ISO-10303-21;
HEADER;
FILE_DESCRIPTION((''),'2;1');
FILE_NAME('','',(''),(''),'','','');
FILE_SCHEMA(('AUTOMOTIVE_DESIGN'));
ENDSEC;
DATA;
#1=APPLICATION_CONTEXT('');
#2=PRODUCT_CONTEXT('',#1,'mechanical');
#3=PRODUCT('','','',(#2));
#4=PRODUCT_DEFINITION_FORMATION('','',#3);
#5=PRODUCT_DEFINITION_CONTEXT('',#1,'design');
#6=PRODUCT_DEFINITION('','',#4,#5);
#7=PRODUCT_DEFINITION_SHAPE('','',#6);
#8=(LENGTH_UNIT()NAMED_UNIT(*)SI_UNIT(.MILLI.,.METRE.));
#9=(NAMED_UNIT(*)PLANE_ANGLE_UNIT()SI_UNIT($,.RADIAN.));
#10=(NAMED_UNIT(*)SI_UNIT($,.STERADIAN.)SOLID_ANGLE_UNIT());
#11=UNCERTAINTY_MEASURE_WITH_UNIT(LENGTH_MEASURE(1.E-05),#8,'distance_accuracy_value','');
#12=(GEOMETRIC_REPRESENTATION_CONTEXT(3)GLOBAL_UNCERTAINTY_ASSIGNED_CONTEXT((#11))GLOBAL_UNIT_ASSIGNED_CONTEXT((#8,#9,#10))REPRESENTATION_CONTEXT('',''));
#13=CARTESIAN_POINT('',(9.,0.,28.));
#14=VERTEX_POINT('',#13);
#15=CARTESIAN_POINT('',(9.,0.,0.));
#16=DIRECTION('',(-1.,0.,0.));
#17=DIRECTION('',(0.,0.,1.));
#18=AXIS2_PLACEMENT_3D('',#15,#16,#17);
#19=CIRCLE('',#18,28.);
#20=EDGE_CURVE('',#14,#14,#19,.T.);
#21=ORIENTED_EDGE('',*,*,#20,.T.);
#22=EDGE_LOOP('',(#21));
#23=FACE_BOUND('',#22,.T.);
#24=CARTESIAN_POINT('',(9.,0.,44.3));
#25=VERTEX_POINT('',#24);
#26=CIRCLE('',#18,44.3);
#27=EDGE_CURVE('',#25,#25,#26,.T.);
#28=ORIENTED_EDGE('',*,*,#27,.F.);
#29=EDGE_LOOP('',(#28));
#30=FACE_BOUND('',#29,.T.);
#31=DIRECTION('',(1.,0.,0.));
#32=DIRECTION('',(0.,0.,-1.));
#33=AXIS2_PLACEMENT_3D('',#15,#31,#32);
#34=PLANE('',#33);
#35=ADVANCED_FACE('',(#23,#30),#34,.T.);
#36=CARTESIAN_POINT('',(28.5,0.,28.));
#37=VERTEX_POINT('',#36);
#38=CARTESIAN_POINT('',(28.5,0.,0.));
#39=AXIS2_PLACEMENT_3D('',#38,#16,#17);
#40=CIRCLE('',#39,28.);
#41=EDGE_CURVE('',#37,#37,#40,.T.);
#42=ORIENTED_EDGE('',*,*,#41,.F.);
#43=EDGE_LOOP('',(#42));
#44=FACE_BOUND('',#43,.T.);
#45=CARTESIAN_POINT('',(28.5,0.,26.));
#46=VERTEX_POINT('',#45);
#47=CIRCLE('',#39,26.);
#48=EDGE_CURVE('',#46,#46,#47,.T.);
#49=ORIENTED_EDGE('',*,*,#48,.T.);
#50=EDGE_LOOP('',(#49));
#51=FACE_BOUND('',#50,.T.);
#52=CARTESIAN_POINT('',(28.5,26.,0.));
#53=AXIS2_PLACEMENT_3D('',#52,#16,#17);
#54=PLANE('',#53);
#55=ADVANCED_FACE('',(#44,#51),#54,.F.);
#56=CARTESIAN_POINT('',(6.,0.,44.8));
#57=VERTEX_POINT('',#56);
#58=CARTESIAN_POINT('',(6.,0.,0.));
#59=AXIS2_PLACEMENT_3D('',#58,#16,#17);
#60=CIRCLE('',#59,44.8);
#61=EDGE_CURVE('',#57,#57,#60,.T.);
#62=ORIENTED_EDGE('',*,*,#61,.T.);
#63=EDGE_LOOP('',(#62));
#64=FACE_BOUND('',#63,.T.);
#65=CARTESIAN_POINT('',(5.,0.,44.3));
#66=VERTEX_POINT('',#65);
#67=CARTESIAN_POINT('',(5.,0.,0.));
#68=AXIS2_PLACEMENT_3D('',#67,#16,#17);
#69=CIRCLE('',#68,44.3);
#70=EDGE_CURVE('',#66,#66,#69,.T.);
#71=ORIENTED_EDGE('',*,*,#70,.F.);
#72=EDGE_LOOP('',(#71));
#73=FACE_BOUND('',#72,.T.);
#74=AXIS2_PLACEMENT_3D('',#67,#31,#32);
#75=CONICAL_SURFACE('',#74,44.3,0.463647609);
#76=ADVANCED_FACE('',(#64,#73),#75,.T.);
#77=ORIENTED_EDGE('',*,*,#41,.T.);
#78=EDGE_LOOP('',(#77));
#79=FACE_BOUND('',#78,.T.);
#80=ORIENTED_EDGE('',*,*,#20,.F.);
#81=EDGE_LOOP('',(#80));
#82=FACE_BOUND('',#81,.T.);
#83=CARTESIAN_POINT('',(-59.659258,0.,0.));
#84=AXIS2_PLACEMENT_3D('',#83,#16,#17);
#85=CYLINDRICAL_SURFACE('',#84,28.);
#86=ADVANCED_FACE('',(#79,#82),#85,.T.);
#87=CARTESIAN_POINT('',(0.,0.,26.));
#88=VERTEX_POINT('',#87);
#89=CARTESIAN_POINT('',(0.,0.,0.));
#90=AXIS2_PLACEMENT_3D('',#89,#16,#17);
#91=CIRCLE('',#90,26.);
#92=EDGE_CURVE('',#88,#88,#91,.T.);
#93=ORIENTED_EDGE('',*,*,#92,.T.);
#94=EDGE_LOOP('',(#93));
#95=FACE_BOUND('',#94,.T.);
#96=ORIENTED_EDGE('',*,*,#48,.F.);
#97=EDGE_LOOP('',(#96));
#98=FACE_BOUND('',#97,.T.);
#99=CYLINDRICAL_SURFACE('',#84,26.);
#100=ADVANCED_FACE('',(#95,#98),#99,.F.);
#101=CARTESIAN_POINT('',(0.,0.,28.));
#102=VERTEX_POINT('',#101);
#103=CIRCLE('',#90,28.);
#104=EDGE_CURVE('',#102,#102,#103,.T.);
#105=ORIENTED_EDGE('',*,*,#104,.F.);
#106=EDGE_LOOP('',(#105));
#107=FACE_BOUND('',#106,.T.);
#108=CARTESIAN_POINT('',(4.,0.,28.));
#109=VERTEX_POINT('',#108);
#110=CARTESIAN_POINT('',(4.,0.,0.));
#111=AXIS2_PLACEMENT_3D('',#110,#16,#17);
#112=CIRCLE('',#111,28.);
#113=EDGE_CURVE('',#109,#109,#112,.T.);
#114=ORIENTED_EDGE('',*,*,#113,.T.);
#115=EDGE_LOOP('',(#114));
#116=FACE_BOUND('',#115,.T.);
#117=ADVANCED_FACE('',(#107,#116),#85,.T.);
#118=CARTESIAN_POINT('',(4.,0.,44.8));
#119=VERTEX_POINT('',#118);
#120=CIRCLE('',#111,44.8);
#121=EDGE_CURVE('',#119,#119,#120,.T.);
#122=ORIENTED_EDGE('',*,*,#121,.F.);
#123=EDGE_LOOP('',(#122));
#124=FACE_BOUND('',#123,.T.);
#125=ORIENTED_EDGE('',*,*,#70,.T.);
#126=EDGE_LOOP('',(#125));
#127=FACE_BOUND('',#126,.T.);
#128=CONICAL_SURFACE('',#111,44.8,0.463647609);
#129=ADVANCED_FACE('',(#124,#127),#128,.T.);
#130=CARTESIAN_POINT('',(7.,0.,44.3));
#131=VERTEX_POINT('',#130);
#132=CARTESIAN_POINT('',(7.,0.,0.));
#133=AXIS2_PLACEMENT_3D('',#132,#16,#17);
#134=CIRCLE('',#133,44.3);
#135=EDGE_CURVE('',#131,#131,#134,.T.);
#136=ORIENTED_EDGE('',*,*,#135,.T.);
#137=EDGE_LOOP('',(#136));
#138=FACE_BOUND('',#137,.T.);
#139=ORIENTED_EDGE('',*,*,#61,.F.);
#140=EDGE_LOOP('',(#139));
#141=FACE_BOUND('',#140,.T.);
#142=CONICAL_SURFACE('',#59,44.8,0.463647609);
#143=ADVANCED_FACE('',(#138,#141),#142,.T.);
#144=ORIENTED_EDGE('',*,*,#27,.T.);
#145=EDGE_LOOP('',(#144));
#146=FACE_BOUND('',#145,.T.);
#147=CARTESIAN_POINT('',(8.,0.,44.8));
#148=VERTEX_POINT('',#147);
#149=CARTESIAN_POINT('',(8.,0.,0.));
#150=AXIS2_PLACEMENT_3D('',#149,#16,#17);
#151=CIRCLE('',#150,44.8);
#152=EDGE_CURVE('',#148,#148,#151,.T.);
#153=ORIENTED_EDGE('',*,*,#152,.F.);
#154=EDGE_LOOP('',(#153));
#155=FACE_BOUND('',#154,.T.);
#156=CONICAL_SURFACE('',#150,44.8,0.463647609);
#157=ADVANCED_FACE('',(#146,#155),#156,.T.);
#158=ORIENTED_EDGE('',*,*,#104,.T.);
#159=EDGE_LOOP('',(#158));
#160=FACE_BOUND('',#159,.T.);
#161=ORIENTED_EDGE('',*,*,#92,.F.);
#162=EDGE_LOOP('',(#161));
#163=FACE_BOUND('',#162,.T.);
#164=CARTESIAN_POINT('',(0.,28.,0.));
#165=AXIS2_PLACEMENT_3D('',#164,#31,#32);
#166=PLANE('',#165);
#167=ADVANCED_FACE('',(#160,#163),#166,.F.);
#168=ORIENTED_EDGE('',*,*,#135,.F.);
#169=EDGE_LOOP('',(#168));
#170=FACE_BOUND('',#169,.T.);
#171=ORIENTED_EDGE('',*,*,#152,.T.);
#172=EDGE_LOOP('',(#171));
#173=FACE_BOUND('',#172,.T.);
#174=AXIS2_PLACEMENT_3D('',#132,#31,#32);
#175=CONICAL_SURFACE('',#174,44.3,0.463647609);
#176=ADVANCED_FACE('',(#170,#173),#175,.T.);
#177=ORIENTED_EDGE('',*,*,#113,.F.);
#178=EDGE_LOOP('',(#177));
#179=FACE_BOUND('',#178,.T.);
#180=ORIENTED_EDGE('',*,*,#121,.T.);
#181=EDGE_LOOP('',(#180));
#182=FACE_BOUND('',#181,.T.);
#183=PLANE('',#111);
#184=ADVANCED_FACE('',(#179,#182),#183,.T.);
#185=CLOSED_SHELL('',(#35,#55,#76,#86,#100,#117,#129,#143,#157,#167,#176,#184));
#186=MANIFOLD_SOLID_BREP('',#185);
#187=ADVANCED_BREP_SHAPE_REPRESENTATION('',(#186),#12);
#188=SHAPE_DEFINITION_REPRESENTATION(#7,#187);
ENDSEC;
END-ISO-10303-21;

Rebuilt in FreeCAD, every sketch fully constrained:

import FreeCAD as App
import Part
import Sketcher
from FreeCAD import Vector

doc = App.newDocument("Part")
params = doc.addObject("Spreadsheet::Sheet", "Params")
for row, (alias, value) in enumerate([
    ("sketch1_width", "4 mm"),
    ("sketch1_height", "2 mm"),
    ("sketch1_width2", "28.5 mm"),
    ("sketch1_width3", "19.5 mm"),
    ("sketch1_height2", "16.3 mm"),
    ("revolution_angle", "360 deg"),
], start=1):
    params.set(f"A{row}", alias)
    params.set(f"B{row}", "=" + value)
    params.setAlias(f"B{row}", alias)

body = doc.addObject("PartDesign::Body", "Body")

# Sketch on XY plane
sketch1 = body.newObject("Sketcher::SketchObject", "Sketch")
sketch1.AttachmentSupport = (doc.getObject("XY_Plane"), [""])
sketch1.MapMode = "FlatFace"
sketch1.addGeometry([
    Part.LineSegment(Vector(0, 28, 0), Vector(0, 26, 0)),  # 0
    Part.LineSegment(Vector(0, 26, 0), Vector(28.5, 26, 0)),  # 1
    Part.LineSegment(Vector(28.5, 26, 0), Vector(28.5, 28, 0)),  # 2
    Part.LineSegment(Vector(28.5, 28, 0), Vector(9, 28, 0)),  # 3
    Part.LineSegment(Vector(9, 28, 0), Vector(9, 44.3, 0)),  # 4
    Part.LineSegment(Vector(9, 44.3, 0), Vector(8, 44.8, 0)),  # 5
    Part.LineSegment(Vector(8, 44.8, 0), Vector(7, 44.3, 0)),  # 6
    Part.LineSegment(Vector(7, 44.3, 0), Vector(6, 44.8, 0)),  # 7
    Part.LineSegment(Vector(6, 44.8, 0), Vector(5, 44.3, 0)),  # 8
    Part.LineSegment(Vector(5, 44.3, 0), Vector(4, 44.8, 0)),  # 9
    Part.LineSegment(Vector(4, 44.8, 0), Vector(4, 28, 0)),  # 10
    Part.LineSegment(Vector(4, 28, 0), Vector(0, 28, 0)),  # 11
], False)
sketch1.addConstraint([
    Sketcher.Constraint("Coincident", 0, 2, 1, 1),
    Sketcher.Constraint("Coincident", 1, 2, 2, 1),
    Sketcher.Constraint("Coincident", 2, 2, 3, 1),
    Sketcher.Constraint("Coincident", 3, 2, 4, 1),
    Sketcher.Constraint("Coincident", 4, 2, 5, 1),
    Sketcher.Constraint("Coincident", 5, 2, 6, 1),
    Sketcher.Constraint("Coincident", 6, 2, 7, 1),
    Sketcher.Constraint("Coincident", 7, 2, 8, 1),
    Sketcher.Constraint("Coincident", 8, 2, 9, 1),
    Sketcher.Constraint("Coincident", 9, 2, 10, 1),
    Sketcher.Constraint("Coincident", 10, 2, 11, 1),
    Sketcher.Constraint("Coincident", 11, 2, 0, 1),
    Sketcher.Constraint("Vertical", 0),
    Sketcher.Constraint("Horizontal", 1),
    Sketcher.Constraint("Vertical", 2),
    Sketcher.Constraint("Horizontal", 3),
    Sketcher.Constraint("Vertical", 4),
    Sketcher.Constraint("Vertical", 10),
    Sketcher.Constraint("Horizontal", 11),
    Sketcher.Constraint("PointOnObject", 0, 2, -2),
    Sketcher.Constraint("Parallel", 5, 7),
    Sketcher.Constraint("Parallel", 6, 8),
    Sketcher.Constraint("Parallel", 7, 9),
    Sketcher.Constraint("Horizontal", 4, 2, 6, 2),
    Sketcher.Constraint("Horizontal", 5, 2, 7, 2),
    Sketcher.Constraint("Horizontal", 6, 2, 8, 2),
    Sketcher.Constraint("Horizontal", 7, 2, 9, 2),
    Sketcher.Constraint("Horizontal", 3, 2, 10, 2),
    Sketcher.Constraint("Equal", 5, 6),
    Sketcher.Constraint("DistanceX", 11, 2, 11, 1, 4.0),
    Sketcher.Constraint("DistanceY", 0, 2, 0, 1, 2.0),
    Sketcher.Constraint("DistanceX", 1, 1, 1, 2, 28.5),
    Sketcher.Constraint("DistanceX", 3, 2, 3, 1, 19.5),
    Sketcher.Constraint("DistanceY", 4, 1, 4, 2, 16.3),
    Sketcher.Constraint("DistanceY", 10, 2, 10, 1, 16.8),
    Sketcher.Constraint("DistanceY", -1, 1, 0, 2, 26.0),
])
sketch1.setExpression("Constraints[29]", "Params.sketch1_width")
sketch1.setExpression("Constraints[30]", "Params.sketch1_height")
sketch1.setExpression("Constraints[31]", "Params.sketch1_width2")
sketch1.setExpression("Constraints[32]", "Params.sketch1_width3")
sketch1.setExpression("Constraints[33]", "Params.sketch1_height2")
revolution = body.newObject("PartDesign::Revolution", "Revolution")
revolution.Profile = sketch1
revolution.ReferenceAxis = (sketch1, ["H_Axis"])
revolution.setExpression("Angle", "Params.revolution_angle")

doc.recompute()
